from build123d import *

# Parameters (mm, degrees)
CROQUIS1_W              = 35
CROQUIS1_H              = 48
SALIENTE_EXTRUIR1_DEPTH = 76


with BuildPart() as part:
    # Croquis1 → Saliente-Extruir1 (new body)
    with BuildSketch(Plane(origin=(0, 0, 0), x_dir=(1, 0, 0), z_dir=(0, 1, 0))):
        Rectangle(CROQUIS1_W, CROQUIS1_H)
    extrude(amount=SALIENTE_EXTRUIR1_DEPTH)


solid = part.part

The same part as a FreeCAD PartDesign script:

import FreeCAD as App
import Part
import Sketcher

V = App.Vector


def add_polygon(sketch, points):
    """Adds a closed chain of lines whose ends are joined by coincident constraints."""
    first, n = sketch.GeometryCount, len(points)
    for a, b in zip(points, points[1:] + points[:1]):
        sketch.addGeometry(Part.LineSegment(App.Vector(*a, 0), App.Vector(*b, 0)), False)
    for i in range(n):
        sketch.addConstraint(Sketcher.Constraint("Coincident", first + i, 2, first + (i + 1) % n, 1))

doc = App.newDocument("Part")
params = doc.addObject("Spreadsheet::Sheet", "Params")
for row, (alias, value) in enumerate([
    ("sketch1_width", "35 mm"),
    ("sketch1_height", "48 mm"),
    ("pad1_length", "76 mm"),
], start=1):
    params.set(f"A{row}", alias)
    params.set(f"B{row}", "=" + value)
    params.setAlias(f"B{row}", alias)

body = doc.addObject("PartDesign::Body", "Body")

# Sketch on XZ plane
sketch1 = body.newObject("Sketcher::SketchObject", "Sketch")
sketch1.AttachmentSupport = (doc.getObject("XZ_Plane"), [""])
sketch1.MapMode = "FlatFace"
add_polygon(sketch1, [(-17.5, -24), (-17.5, 24), (17.5, 24), (17.5, -24)])  # lines 0-3
sketch1.addConstraint([
    Sketcher.Constraint("Vertical", 0),
    Sketcher.Constraint("Horizontal", 1),
    Sketcher.Constraint("Vertical", 2),
    Sketcher.Constraint("Horizontal", 3),
    Sketcher.Constraint("Symmetric", 0, 2, 2, 2, -1, 1),
    Sketcher.Constraint("DistanceX", 1, 1, 1, 2, 35.0),
    Sketcher.Constraint("DistanceY", 0, 1, 0, 2, 48.0),
])
sketch1.setExpression("Constraints[9]", "Params.sketch1_width")
sketch1.setExpression("Constraints[10]", "Params.sketch1_height")
pad1 = body.newObject("PartDesign::Pad", "Pad")
pad1.Profile = sketch1
pad1.setExpression("Length", "Params.pad1_length")
pad1.Reversed = True

doc.recompute()
